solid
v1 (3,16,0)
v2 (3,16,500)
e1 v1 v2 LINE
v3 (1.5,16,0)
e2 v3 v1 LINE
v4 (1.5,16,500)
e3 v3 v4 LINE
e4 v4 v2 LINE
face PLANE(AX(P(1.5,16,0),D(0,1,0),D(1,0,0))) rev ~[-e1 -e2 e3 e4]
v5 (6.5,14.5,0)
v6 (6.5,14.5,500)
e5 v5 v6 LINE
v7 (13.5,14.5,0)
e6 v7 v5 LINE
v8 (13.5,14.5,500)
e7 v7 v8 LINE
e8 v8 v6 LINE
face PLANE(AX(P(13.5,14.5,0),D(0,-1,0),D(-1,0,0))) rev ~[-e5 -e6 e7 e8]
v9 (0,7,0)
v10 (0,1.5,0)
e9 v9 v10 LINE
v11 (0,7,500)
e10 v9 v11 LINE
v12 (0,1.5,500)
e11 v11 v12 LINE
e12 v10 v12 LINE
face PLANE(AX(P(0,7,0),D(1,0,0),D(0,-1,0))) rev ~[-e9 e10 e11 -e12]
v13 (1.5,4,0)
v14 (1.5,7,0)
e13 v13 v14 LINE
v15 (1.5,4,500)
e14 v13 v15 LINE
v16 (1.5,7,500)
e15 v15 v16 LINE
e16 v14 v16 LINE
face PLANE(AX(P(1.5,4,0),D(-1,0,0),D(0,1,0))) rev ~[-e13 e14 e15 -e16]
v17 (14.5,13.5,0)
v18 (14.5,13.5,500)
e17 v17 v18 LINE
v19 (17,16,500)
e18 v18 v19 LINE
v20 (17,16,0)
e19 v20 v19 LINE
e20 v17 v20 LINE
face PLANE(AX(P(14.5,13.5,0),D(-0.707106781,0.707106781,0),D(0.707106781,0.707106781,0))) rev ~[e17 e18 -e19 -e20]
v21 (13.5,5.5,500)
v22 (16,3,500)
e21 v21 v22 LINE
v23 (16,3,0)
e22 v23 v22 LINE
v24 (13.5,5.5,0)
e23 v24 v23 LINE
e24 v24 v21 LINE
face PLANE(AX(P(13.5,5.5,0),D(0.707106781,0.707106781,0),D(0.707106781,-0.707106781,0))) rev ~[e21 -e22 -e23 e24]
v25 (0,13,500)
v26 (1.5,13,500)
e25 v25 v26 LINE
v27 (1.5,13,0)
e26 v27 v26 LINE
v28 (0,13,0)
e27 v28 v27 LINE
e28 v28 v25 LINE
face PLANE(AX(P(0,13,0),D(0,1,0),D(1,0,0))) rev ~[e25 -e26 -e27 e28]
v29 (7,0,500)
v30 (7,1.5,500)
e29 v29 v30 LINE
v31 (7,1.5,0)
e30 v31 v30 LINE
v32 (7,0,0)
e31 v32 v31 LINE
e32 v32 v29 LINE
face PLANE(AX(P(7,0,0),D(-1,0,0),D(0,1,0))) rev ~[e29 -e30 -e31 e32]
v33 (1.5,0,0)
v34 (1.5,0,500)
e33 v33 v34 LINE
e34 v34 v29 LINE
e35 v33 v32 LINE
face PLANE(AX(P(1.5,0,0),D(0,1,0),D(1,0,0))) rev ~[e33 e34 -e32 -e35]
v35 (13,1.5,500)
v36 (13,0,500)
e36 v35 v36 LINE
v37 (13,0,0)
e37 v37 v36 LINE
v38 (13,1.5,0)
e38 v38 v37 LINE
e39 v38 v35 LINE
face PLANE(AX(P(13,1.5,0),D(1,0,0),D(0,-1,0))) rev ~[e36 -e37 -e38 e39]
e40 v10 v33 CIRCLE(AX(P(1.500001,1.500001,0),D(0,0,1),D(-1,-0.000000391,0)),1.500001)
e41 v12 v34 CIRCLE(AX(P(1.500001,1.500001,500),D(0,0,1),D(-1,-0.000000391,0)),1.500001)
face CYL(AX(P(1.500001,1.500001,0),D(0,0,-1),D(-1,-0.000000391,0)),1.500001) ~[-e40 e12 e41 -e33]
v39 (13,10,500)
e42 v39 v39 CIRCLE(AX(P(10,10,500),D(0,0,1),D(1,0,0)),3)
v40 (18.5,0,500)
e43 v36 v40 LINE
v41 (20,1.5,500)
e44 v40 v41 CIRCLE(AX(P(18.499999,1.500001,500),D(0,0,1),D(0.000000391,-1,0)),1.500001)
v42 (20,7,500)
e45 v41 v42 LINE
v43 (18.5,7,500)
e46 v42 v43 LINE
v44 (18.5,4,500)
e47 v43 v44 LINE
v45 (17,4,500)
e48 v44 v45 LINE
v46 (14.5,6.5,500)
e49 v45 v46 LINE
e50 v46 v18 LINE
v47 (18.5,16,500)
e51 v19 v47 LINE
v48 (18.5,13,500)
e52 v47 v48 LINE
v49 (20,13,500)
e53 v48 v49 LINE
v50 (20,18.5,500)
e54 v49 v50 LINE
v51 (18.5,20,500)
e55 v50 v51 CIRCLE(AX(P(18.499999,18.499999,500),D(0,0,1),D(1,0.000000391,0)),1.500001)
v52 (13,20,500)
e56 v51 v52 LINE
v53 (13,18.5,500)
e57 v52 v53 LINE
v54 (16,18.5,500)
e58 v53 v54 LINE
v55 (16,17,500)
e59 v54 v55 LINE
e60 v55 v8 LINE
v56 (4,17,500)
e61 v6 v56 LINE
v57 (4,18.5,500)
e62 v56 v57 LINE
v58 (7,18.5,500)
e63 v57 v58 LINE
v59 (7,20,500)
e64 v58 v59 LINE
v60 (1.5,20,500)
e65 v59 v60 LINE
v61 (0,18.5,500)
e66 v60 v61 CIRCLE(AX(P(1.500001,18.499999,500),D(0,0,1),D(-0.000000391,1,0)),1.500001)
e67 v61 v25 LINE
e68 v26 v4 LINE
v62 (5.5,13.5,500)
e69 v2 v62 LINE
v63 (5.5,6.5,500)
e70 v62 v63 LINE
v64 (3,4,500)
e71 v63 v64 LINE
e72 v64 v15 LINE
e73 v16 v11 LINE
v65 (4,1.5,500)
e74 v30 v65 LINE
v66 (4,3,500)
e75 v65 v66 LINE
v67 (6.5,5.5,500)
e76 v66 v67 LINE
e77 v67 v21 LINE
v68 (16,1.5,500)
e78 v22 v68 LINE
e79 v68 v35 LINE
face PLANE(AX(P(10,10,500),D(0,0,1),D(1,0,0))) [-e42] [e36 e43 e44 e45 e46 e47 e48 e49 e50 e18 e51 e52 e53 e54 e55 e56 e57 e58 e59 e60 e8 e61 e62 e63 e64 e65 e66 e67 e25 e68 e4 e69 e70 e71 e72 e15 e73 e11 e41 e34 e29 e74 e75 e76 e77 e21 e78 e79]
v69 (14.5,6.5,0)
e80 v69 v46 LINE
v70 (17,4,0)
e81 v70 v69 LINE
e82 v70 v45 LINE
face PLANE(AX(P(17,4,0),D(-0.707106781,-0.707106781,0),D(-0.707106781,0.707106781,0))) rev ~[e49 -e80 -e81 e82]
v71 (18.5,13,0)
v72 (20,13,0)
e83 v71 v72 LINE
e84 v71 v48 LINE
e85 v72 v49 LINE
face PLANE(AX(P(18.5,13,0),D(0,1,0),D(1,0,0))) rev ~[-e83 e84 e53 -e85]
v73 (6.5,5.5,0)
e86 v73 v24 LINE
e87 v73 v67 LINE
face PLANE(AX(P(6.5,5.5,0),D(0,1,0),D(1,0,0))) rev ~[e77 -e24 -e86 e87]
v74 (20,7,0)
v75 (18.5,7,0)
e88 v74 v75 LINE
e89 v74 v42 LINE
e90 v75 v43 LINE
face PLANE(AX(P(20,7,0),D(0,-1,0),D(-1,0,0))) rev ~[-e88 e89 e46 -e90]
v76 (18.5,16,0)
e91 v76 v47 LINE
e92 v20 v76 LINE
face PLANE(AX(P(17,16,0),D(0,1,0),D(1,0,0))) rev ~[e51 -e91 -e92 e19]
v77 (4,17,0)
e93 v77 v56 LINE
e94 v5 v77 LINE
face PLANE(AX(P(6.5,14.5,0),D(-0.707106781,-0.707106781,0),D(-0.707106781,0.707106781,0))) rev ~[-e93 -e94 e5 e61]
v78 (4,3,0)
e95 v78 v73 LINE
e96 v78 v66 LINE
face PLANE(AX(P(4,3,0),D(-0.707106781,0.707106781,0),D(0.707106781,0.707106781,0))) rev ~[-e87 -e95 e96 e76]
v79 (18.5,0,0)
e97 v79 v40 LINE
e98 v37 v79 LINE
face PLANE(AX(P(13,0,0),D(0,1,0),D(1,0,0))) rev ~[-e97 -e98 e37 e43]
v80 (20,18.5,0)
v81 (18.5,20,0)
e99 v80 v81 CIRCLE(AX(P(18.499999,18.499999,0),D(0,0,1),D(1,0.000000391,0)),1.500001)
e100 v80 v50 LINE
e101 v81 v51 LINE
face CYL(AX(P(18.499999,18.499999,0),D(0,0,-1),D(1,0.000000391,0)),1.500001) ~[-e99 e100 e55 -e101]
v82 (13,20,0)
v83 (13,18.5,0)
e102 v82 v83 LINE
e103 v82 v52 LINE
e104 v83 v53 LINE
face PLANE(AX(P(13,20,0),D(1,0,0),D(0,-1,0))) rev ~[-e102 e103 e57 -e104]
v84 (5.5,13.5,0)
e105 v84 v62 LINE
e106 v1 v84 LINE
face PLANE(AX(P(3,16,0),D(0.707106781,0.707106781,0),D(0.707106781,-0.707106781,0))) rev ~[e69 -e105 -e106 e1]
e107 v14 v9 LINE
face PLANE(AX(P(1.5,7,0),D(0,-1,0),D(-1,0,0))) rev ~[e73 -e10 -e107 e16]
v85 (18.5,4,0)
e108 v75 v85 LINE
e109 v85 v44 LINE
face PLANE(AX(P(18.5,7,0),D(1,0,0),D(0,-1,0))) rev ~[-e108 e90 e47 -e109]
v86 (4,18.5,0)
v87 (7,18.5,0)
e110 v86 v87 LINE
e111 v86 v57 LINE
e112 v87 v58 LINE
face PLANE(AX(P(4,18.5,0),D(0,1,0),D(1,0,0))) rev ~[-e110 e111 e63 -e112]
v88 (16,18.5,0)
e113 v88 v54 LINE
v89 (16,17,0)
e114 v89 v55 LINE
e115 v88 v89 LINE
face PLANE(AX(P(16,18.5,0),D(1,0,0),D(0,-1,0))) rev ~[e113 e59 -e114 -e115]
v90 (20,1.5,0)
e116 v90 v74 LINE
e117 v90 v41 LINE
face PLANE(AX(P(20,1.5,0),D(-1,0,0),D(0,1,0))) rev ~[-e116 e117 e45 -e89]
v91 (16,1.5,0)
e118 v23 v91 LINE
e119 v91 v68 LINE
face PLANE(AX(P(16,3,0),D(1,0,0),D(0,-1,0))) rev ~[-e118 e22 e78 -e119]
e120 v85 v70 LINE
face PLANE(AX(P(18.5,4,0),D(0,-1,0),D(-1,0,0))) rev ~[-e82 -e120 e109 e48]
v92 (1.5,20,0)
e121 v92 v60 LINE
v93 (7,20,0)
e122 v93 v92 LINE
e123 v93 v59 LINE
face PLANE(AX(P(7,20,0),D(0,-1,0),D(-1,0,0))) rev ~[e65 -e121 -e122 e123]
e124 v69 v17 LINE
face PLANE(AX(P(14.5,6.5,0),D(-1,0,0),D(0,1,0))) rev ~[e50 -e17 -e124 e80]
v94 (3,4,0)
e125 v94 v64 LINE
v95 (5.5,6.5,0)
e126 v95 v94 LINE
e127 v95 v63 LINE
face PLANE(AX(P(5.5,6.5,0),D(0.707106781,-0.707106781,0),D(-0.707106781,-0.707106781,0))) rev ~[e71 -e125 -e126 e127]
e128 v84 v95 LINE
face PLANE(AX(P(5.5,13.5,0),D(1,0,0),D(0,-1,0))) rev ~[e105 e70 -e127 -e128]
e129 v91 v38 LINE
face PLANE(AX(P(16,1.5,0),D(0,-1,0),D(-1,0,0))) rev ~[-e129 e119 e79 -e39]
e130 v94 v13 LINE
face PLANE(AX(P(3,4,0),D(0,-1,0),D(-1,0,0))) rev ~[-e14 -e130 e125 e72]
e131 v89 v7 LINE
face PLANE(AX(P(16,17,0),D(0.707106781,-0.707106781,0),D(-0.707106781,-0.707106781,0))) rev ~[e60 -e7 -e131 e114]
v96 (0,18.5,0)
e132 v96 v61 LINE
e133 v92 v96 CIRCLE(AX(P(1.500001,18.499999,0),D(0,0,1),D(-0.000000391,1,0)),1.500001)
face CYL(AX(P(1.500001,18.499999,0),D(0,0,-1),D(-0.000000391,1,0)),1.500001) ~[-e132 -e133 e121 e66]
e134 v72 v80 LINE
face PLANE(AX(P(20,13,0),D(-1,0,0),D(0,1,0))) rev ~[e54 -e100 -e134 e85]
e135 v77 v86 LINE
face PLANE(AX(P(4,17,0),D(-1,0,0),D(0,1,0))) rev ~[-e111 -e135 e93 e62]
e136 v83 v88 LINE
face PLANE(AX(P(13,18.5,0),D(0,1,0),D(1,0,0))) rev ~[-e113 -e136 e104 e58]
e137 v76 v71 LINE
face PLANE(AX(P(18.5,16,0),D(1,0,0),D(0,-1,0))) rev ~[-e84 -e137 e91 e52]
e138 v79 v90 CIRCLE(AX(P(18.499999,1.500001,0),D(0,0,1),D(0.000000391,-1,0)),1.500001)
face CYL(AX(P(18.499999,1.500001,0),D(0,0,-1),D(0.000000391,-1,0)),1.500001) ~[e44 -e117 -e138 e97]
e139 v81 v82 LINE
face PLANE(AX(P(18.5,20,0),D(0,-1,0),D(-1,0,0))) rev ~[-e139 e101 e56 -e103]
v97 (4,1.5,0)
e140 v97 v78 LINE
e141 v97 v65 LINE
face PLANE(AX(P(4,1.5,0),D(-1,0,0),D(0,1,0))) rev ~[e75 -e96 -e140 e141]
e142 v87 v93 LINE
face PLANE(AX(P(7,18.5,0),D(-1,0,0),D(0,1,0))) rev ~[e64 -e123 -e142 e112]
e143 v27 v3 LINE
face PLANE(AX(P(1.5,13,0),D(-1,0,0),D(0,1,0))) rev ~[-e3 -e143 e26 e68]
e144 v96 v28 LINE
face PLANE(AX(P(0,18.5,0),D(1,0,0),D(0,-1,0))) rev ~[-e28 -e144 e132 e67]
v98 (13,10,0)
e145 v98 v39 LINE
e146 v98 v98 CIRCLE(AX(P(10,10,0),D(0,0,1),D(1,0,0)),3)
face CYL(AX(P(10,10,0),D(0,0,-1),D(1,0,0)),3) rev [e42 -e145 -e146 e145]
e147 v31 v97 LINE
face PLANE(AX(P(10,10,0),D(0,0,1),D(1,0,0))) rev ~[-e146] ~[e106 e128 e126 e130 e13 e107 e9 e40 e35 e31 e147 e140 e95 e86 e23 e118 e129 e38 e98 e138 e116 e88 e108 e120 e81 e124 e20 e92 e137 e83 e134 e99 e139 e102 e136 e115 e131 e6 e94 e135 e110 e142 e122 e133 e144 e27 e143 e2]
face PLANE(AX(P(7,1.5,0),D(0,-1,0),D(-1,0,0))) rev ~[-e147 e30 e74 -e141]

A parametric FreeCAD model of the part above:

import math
import FreeCAD as App
import Part
import Sketcher

V = App.Vector
Q = App.Units.Quantity

doc = App.newDocument("Part")
body = doc.addObject("PartDesign::Body", "Body")

sketch1 = doc.addObject("Sketcher::SketchObject", "Sketch")
body.addObject(sketch1)
sketch1.AttachmentSupport = (doc.XY_Plane, [""])
sketch1.MapMode = "FlatFace"
sketch1.addGeometry([
    Part.ArcOfCircle(Part.Circle(V(1.5, 1.5, 0), V(0, 0, 1), 1.5), math.radians(-180), math.radians(-90)),
    Part.LineSegment(V(1.5, 0, 0), V(7, 0, 0)),
    Part.LineSegment(V(7, 0, 0), V(7, 1.5, 0)),
    Part.LineSegment(V(7, 1.5, 0), V(4, 1.5, 0)),
    Part.LineSegment(V(4, 1.5, 0), V(4, 3, 0)),
    Part.LineSegment(V(4, 3, 0), V(6.5, 5.5, 0)),
    Part.LineSegment(V(6.5, 5.5, 0), V(13.5, 5.5, 0)),
    Part.LineSegment(V(13.5, 5.5, 0), V(16, 3, 0)),
    Part.LineSegment(V(16, 3, 0), V(16, 1.5, 0)),
    Part.LineSegment(V(16, 1.5, 0), V(13, 1.5, 0)),
    Part.LineSegment(V(13, 1.5, 0), V(13, 0, 0)),
    Part.LineSegment(V(13, 0, 0), V(18.5, 0, 0)),
    Part.ArcOfCircle(Part.Circle(V(18.5, 1.5, 0), V(0, 0, 1), 1.5), math.radians(-90), math.radians(0)),
    Part.LineSegment(V(20, 1.5, 0), V(20, 7, 0)),
    Part.LineSegment(V(20, 7, 0), V(18.5, 7, 0)),
    Part.LineSegment(V(18.5, 7, 0), V(18.5, 4, 0)),
    Part.LineSegment(V(18.5, 4, 0), V(17, 4, 0)),
    Part.LineSegment(V(17, 4, 0), V(14.5, 6.5, 0)),
    Part.LineSegment(V(14.5, 6.5, 0), V(14.5, 13.5, 0)),
    Part.LineSegment(V(14.5, 13.5, 0), V(17, 16, 0)),
    Part.LineSegment(V(17, 16, 0), V(18.5, 16, 0)),
    Part.LineSegment(V(18.5, 16, 0), V(18.5, 13, 0)),
    Part.LineSegment(V(18.5, 13, 0), V(20, 13, 0)),
    Part.LineSegment(V(20, 13, 0), V(20, 18.5, 0)),
    Part.ArcOfCircle(Part.Circle(V(18.5, 18.5, 0), V(0, 0, 1), 1.5), math.radians(0), math.radians(90)),
    Part.LineSegment(V(18.5, 20, 0), V(13, 20, 0)),
    Part.LineSegment(V(13, 20, 0), V(13, 18.5, 0)),
    Part.LineSegment(V(13, 18.5, 0), V(16, 18.5, 0)),
    Part.LineSegment(V(16, 18.5, 0), V(16, 17, 0)),
    Part.LineSegment(V(16, 17, 0), V(13.5, 14.5, 0)),
    Part.LineSegment(V(13.5, 14.5, 0), V(6.5, 14.5, 0)),
    Part.LineSegment(V(6.5, 14.5, 0), V(4, 17, 0)),
    Part.LineSegment(V(4, 17, 0), V(4, 18.5, 0)),
    Part.LineSegment(V(4, 18.5, 0), V(7, 18.5, 0)),
    Part.LineSegment(V(7, 18.5, 0), V(7, 20, 0)),
    Part.LineSegment(V(7, 20, 0), V(1.5, 20, 0)),
    Part.ArcOfCircle(Part.Circle(V(1.5, 18.5, 0), V(0, 0, 1), 1.5), math.radians(90), math.radians(180)),
    Part.LineSegment(V(0, 18.5, 0), V(0, 13, 0)),
    Part.LineSegment(V(0, 13, 0), V(1.5, 13, 0)),
    Part.LineSegment(V(1.5, 13, 0), V(1.5, 16, 0)),
    Part.LineSegment(V(1.5, 16, 0), V(3, 16, 0)),
    Part.LineSegment(V(3, 16, 0), V(5.5, 13.5, 0)),
    Part.LineSegment(V(5.5, 13.5, 0), V(5.5, 6.5, 0)),
    Part.LineSegment(V(5.5, 6.5, 0), V(3, 4, 0)),
    Part.LineSegment(V(3, 4, 0), V(1.5, 4, 0)),
    Part.LineSegment(V(1.5, 4, 0), V(1.5, 7, 0)),
    Part.LineSegment(V(1.5, 7, 0), V(0, 7, 0)),
    Part.LineSegment(V(0, 7, 0), V(0, 1.5, 0)),
    Part.Circle(V(10, 10, 0), V(0, 0, 1), 3),
], False)
sketch1.addConstraint([
    Sketcher.Constraint("Tangent", 0, 2, 1, 1),
    Sketcher.Constraint("Coincident", 1, 2, 2, 1),
    Sketcher.Constraint("Coincident", 2, 2, 3, 1),
    Sketcher.Constraint("Coincident", 3, 2, 4, 1),
    Sketcher.Constraint("Coincident", 4, 2, 5, 1),
    Sketcher.Constraint("Coincident", 5, 2, 6, 1),
    Sketcher.Constraint("Coincident", 6, 2, 7, 1),
    Sketcher.Constraint("Coincident", 7, 2, 8, 1),
    Sketcher.Constraint("Coincident", 8, 2, 9, 1),
    Sketcher.Constraint("Coincident", 9, 2, 10, 1),
    Sketcher.Constraint("Coincident", 10, 2, 11, 1),
    Sketcher.Constraint("Tangent", 11, 2, 12, 1),
    Sketcher.Constraint("Tangent", 12, 2, 13, 1),
    Sketcher.Constraint("Coincident", 13, 2, 14, 1),
    Sketcher.Constraint("Coincident", 14, 2, 15, 1),
    Sketcher.Constraint("Coincident", 15, 2, 16, 1),
    Sketcher.Constraint("Coincident", 16, 2, 17, 1),
    Sketcher.Constraint("Coincident", 17, 2, 18, 1),
    Sketcher.Constraint("Coincident", 18, 2, 19, 1),
    Sketcher.Constraint("Coincident", 19, 2, 20, 1),
    Sketcher.Constraint("Coincident", 20, 2, 21, 1),
    Sketcher.Constraint("Coincident", 21, 2, 22, 1),
    Sketcher.Constraint("Coincident", 22, 2, 23, 1),
    Sketcher.Constraint("Tangent", 23, 2, 24, 1),
    Sketcher.Constraint("Tangent", 24, 2, 25, 1),
    Sketcher.Constraint("Coincident", 25, 2, 26, 1),
    Sketcher.Constraint("Coincident", 26, 2, 27, 1),
    Sketcher.Constraint("Coincident", 27, 2, 28, 1),
    Sketcher.Constraint("Coincident", 28, 2, 29, 1),
    Sketcher.Constraint("Coincident", 29, 2, 30, 1),
    Sketcher.Constraint("Coincident", 30, 2, 31, 1),
    Sketcher.Constraint("Coincident", 31, 2, 32, 1),
    Sketcher.Constraint("Coincident", 32, 2, 33, 1),
    Sketcher.Constraint("Coincident", 33, 2, 34, 1),
    Sketcher.Constraint("Coincident", 34, 2, 35, 1),
    Sketcher.Constraint("Tangent", 35, 2, 36, 1),
    Sketcher.Constraint("Tangent", 36, 2, 37, 1),
    Sketcher.Constraint("Coincident", 37, 2, 38, 1),
    Sketcher.Constraint("Coincident", 38, 2, 39, 1),
    Sketcher.Constraint("Coincident", 39, 2, 40, 1),
    Sketcher.Constraint("Coincident", 40, 2, 41, 1),
    Sketcher.Constraint("Coincident", 41, 2, 42, 1),
    Sketcher.Constraint("Coincident", 42, 2, 43, 1),
    Sketcher.Constraint("Coincident", 43, 2, 44, 1),
    Sketcher.Constraint("Coincident", 44, 2, 45, 1),
    Sketcher.Constraint("Coincident", 45, 2, 46, 1),
    Sketcher.Constraint("Coincident", 46, 2, 47, 1),
    Sketcher.Constraint("Tangent", 47, 2, 0, 1),
    Sketcher.Constraint("Horizontal", 1),
    Sketcher.Constraint("Vertical", 2),
    Sketcher.Constraint("Horizontal", 3),
    Sketcher.Constraint("Vertical", 4),
    Sketcher.Constraint("Horizontal", 6),
    Sketcher.Constraint("Vertical", 8),
    Sketcher.Constraint("Horizontal", 9),
    Sketcher.Constraint("Vertical", 10),
    Sketcher.Constraint("Horizontal", 11),
    Sketcher.Constraint("Vertical", 13),
    Sketcher.Constraint("Horizontal", 14),
    Sketcher.Constraint("Vertical", 15),
    Sketcher.Constraint("Horizontal", 16),
    Sketcher.Constraint("Vertical", 18),
    Sketcher.Constraint("Horizontal", 20),
    Sketcher.Constraint("Vertical", 21),
    Sketcher.Constraint("Horizontal", 22),
    Sketcher.Constraint("Vertical", 23),
    Sketcher.Constraint("Horizontal", 25),
    Sketcher.Constraint("Vertical", 26),
    Sketcher.Constraint("Horizontal", 27),
    Sketcher.Constraint("Vertical", 28),
    Sketcher.Constraint("Horizontal", 30),
    Sketcher.Constraint("Vertical", 32),
    Sketcher.Constraint("Horizontal", 33),
    Sketcher.Constraint("Vertical", 34),
    Sketcher.Constraint("Horizontal", 35),
    Sketcher.Constraint("Vertical", 37),
    Sketcher.Constraint("Horizontal", 38),
    Sketcher.Constraint("Vertical", 39),
    Sketcher.Constraint("Horizontal", 40),
    Sketcher.Constraint("Vertical", 42),
    Sketcher.Constraint("Horizontal", 44),
    Sketcher.Constraint("Vertical", 45),
    Sketcher.Constraint("Horizontal", 46),
    Sketcher.Constraint("Vertical", 47),
    Sketcher.Constraint("Equal", 0, 12),
    Sketcher.Constraint("Equal", 12, 24),
    Sketcher.Constraint("Equal", 24, 36),
    Sketcher.Constraint("PointOnObject", 0, 2, -1),
    Sketcher.Constraint("PointOnObject", 10, 2, -1),
    Sketcher.Constraint("PointOnObject", 36, 2, -2),
    Sketcher.Constraint("PointOnObject", 46, 2, -2),
    Sketcher.Constraint("Perpendicular", 5, 7),
    Sketcher.Constraint("Parallel", 7, 17),
    Sketcher.Constraint("Perpendicular", 17, 19),
    Sketcher.Constraint("Parallel", 19, 29),
    Sketcher.Constraint("Perpendicular", 29, 31),
    Sketcher.Constraint("Parallel", 31, 41),
    Sketcher.Constraint("Perpendicular", 41, 43),
    Sketcher.Constraint("Horizontal", 24, 3, 36, 3),
    Sketcher.Constraint("Horizontal", 12, 3, 2, 2),
    Sketcher.Constraint("Horizontal", 4, 2, 7, 2),
    Sketcher.Constraint("Horizontal", 3, 2, 8, 2),
    Sketcher.Constraint("Horizontal", 23, 2, 26, 2),
    Sketcher.Constraint("Horizontal", 28, 2, 31, 2),
    Sketcher.Constraint("Horizontal", 27, 2, 32, 2),
    Sketcher.Constraint("Horizontal", 22, 2, 37, 2),
    Sketcher.Constraint("Horizontal", 20, 2, 39, 2),
    Sketcher.Constraint("Horizontal", 18, 2, 41, 2),
    Sketcher.Constraint("Horizontal", 17, 2, 42, 2),
    Sketcher.Constraint("Horizontal", 16, 2, 43, 2),
    Sketcher.Constraint("Horizontal", 14, 2, 45, 2),
    Sketcher.Constraint("Vertical", 12, 3, 24, 3),
    Sketcher.Constraint("Vertical", 11, 2, 14, 2),
    Sketcher.Constraint("Vertical", 16, 2, 19, 2),
    Sketcher.Constraint("Vertical", 15, 2, 20, 2),
    Sketcher.Constraint("Vertical", 10, 2, 25, 2),
    Sketcher.Constraint("Vertical", 8, 2, 27, 2),
    Sketcher.Constraint("Vertical", 6, 2, 29, 2),
    Sketcher.Constraint("Vertical", 5, 2, 30, 2),
    Sketcher.Constraint("Vertical", 4, 2, 31, 2),
    Sketcher.Constraint("Vertical", 2, 2, 33, 2),
    Sketcher.Constraint("Vertical", 35, 2, 38, 2),
    Sketcher.Constraint("Vertical", 39, 2, 44, 2),
    Sketcher.Constraint("Equal", 3, 9),
    Sketcher.Constraint("Equal", 1, 11),
    Sketcher.Constraint("Equal", 14, 16),
    Sketcher.Constraint("Equal", 38, 40),
    Sketcher.Constraint("Equal", 2, 4),
    Sketcher.Constraint("Equal", 35, 13),
    Sketcher.Constraint("Equal", 33, 15),
    Sketcher.Constraint("Equal", 30, 18),
    Sketcher.Constraint("Equal", 15, 21),
    Sketcher.Constraint("Equal", 13, 23),
    Sketcher.Constraint("Equal", 26, 28),
    Sketcher.Constraint("Equal", 7, 17),
    Sketcher.Constraint("Diameter", 48, Q("6 mm")),
    Sketcher.Constraint("Radius", 0, Q("1.500001 mm")),
    Sketcher.Constraint("DistanceX", 3, 2, 3, 1, Q("3 mm")),
    Sketcher.Constraint("DistanceX", 6, 1, 6, 2, Q("7 mm")),
    Sketcher.Constraint("DistanceX", 1, 1, 1, 2, Q("5.5 mm")),
    Sketcher.Constraint("DistanceX", -1, 1, 48, 3, Q("10 mm")),
    Sketcher.Constraint("DistanceY", -1, 1, 48, 3, Q("10 mm")),
    Sketcher.Constraint("DistanceX", -1, 1, 7, 2, Q("16 mm")),
])
pad1 = doc.addObject("PartDesign::Pad", "Pad")
body.addObject(pad1)
pad1.Profile = sketch1
pad1.Length = 500

doc.recompute()
